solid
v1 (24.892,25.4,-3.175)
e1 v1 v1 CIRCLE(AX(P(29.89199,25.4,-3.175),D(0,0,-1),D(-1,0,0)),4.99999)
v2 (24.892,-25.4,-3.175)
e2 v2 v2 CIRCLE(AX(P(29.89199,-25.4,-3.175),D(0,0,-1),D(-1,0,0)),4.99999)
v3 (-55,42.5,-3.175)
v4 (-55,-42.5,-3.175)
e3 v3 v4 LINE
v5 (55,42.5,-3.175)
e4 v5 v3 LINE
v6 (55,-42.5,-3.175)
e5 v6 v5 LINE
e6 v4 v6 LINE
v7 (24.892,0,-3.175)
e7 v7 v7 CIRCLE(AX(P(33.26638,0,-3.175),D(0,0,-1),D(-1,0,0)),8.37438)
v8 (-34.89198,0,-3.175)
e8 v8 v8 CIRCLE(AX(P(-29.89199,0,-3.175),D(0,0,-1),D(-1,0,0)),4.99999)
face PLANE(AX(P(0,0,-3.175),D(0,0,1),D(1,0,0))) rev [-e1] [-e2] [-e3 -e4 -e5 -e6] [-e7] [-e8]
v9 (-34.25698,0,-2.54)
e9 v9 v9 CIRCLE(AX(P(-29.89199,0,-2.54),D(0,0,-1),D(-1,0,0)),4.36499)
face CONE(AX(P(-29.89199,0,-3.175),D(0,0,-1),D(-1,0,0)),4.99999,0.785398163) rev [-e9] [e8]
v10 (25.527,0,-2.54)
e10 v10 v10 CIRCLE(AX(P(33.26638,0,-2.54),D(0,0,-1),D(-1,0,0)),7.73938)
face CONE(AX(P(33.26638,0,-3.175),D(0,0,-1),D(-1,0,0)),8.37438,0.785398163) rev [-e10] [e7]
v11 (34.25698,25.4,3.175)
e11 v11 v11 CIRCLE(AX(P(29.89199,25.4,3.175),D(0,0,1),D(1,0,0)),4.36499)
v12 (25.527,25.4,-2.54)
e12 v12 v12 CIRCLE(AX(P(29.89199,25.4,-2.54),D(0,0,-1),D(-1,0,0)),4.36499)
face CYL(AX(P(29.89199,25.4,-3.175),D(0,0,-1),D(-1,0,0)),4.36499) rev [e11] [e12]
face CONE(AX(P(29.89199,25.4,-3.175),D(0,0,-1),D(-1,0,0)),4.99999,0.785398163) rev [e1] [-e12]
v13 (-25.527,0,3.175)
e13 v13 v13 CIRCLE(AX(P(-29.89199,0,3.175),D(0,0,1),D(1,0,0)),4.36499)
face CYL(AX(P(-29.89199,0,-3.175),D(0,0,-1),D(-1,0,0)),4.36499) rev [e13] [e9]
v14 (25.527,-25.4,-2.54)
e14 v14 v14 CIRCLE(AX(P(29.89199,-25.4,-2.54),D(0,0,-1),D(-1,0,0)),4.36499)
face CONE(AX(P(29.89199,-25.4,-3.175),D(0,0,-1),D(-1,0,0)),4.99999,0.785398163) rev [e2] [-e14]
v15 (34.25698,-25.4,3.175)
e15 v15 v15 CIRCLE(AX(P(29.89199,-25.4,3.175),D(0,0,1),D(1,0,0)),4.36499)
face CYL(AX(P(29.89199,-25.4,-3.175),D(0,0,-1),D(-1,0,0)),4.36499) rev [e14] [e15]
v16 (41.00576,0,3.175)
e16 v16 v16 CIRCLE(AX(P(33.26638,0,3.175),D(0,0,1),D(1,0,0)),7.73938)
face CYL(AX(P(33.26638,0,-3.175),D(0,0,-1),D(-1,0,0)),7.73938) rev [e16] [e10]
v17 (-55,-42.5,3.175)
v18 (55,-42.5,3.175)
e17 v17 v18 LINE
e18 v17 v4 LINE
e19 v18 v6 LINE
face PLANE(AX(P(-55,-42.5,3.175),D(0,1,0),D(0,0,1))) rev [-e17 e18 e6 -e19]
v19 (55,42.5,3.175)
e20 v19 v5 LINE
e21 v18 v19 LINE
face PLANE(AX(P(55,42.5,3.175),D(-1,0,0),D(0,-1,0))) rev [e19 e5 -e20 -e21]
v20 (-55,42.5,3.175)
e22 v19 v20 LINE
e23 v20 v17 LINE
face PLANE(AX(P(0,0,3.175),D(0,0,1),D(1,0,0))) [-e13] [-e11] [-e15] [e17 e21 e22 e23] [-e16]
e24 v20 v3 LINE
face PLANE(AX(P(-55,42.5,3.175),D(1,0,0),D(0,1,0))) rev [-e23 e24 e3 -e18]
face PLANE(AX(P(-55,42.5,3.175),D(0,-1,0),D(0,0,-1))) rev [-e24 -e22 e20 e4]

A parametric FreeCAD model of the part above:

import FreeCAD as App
import Part
import Sketcher
Q = App.Units.Quantity

doc = App.newDocument("Part")
params = doc.addObject("Spreadsheet::Sheet", "Params")
for row, (alias, value) in enumerate([
    ("pad1_length", "0.25 in"),
    ("hole_diameter", "0.3437 in"),
    ("hole_csink_diameter", "0.3937 in"),
    ("sketch3_height", "0.25 in"),
    ("groove_angle", "360 deg"),
], start=1):
    params.set(f"A{row}", alias)
    params.set(f"B{row}", "=" + value)
    params.setAlias(f"B{row}", alias)

body = doc.addObject("PartDesign::Body", "Body")

sketch1 = body.newObject("Sketcher::SketchObject", "Sketch")
sketch1.AttachmentSupport = (doc.getObject("XY_Plane"), [""])
sketch1.MapMode = "FlatFace"
sketch1.addGeometry([
    Part.LineSegment(App.Vector(-55, 42.5, 0), App.Vector(-55, -42.5, 0)),
    Part.LineSegment(App.Vector(-55, -42.5, 0), App.Vector(55, -42.5, 0)),
    Part.LineSegment(App.Vector(55, -42.5, 0), App.Vector(55, 42.5, 0)),
    Part.LineSegment(App.Vector(55, 42.5, 0), App.Vector(-55, 42.5, 0)),
], False)
sketch1.addConstraint([
    Sketcher.Constraint("Coincident", 0, 2, 1, 1),
    Sketcher.Constraint("Coincident", 1, 2, 2, 1),
    Sketcher.Constraint("Coincident", 2, 2, 3, 1),
    Sketcher.Constraint("Coincident", 3, 2, 0, 1),
    Sketcher.Constraint("Vertical", 0),
    Sketcher.Constraint("Horizontal", 1),
    Sketcher.Constraint("Vertical", 2),
    Sketcher.Constraint("Horizontal", 3),
    Sketcher.Constraint("Symmetric", 0, 2, 2, 2, -1, 1),
    Sketcher.Constraint("DistanceX", 1, 1, 1, 2, 110.0),
    Sketcher.Constraint("DistanceY", 0, 2, 0, 1, 85.0),
])
pad1 = body.newObject("PartDesign::Pad", "Pad")
pad1.Profile = sketch1
pad1.setExpression("Length", "Params.pad1_length")
pad1.Midplane = True

sketch2 = body.newObject("Sketcher::SketchObject", "Sketch001")
sketch2.AttachmentSupport = (doc.getObject("XY_Plane"), [""])
sketch2.MapMode = "FlatFace"
sketch2.AttachmentOffset = App.Placement(App.Vector(0, 0, -0.125 * 25.4), App.Rotation())
sketch2.addGeometry([
    Part.Circle(App.Vector(29.89199, 25.4, 0), App.Vector(0, 0, 1), 4.36499),
    Part.Circle(App.Vector(29.89199, -25.4, 0), App.Vector(0, 0, 1), 4.36499),
    Part.Circle(App.Vector(-29.89199, 0, 0), App.Vector(0, 0, 1), 4.36499),
], False)
sketch2.addConstraint([
    Sketcher.Constraint("Equal", 0, 1),
    Sketcher.Constraint("Equal", 1, 2),
    Sketcher.Constraint("Symmetric", 0, 3, 1, 3, -1),
    Sketcher.Constraint("PointOnObject", 2, 3, -1),
    Sketcher.Constraint("DistanceY", -1, 1, 0, 3, Q("1 in")),
    Sketcher.Constraint("Diameter", 0, Q("0.3437 in")),
    Sketcher.Constraint("DistanceX", 2, 3, 0, 3, Q("2.3537 in")),
    Sketcher.Constraint("DistanceX", -1, 1, 0, 3, 29.89199),
])
doc.recompute()
hole = body.newObject("PartDesign::Hole", "Hole")
hole.Profile = sketch2
hole.ThreadType = "None"
hole.setExpression("Diameter", "Params.hole_diameter")
hole.DepthType = "ThroughAll"
hole.HoleCutType = "Countersink"
hole.setExpression("HoleCutDiameter", "Params.hole_csink_diameter")
hole.HoleCutCountersinkAngle = 90
hole.Reversed = True

sketch3 = body.newObject("Sketcher::SketchObject", "Sketch002")
sketch3.AttachmentSupport = (doc.getObject("YZ_Plane"), [""])
sketch3.MapMode = "FlatFace"
sketch3.AttachmentOffset = App.Placement(App.Vector(0, 0, 1.3097 * 25.4), App.Rotation())
sketch3.addGeometry([
    Part.LineSegment(App.Vector(0, 3.175, 0), App.Vector(0, -3.175, 0)),
    Part.LineSegment(App.Vector(0, -3.175, 0), App.Vector(8.37438, -3.175, 0)),
    Part.LineSegment(App.Vector(8.37438, -3.175, 0), App.Vector(7.73938, -2.54, 0)),
    Part.LineSegment(App.Vector(7.73938, -2.54, 0), App.Vector(7.73938, 3.175, 0)),
    Part.LineSegment(App.Vector(7.73938, 3.175, 0), App.Vector(0, 3.175, 0)),
], False)
sketch3.addConstraint([
    Sketcher.Constraint("Coincident", 0, 2, 1, 1),
    Sketcher.Constraint("Coincident", 1, 2, 2, 1),
    Sketcher.Constraint("Coincident", 2, 2, 3, 1),
    Sketcher.Constraint("Coincident", 3, 2, 4, 1),
    Sketcher.Constraint("Coincident", 4, 2, 0, 1),
    Sketcher.Constraint("Vertical", 0),
    Sketcher.Constraint("Horizontal", 1),
    Sketcher.Constraint("Vertical", 3),
    Sketcher.Constraint("Horizontal", 4),
    Sketcher.Constraint("Symmetric", 0, 2, 4, 2, -1, 1),
    Sketcher.Constraint("Angle", 2, Q("135 deg")),
    Sketcher.Constraint("DistanceY", 0, 2, 0, 1, Q("0.25 in")),
    Sketcher.Constraint("DistanceY", 2, 2, -1, 1, Q("0.1 in")),
    Sketcher.Constraint("DistanceX", 1, 1, 1, 2, Q("0.3297 in")),
])
sketch3.setExpression("Constraints[11]", "Params.sketch3_height")
groove = body.newObject("PartDesign::Groove", "Groove")
groove.Profile = sketch3
groove.ReferenceAxis = (sketch3, ["V_Axis"])
groove.setExpression("Angle", "Params.groove_angle")

doc.recompute()
